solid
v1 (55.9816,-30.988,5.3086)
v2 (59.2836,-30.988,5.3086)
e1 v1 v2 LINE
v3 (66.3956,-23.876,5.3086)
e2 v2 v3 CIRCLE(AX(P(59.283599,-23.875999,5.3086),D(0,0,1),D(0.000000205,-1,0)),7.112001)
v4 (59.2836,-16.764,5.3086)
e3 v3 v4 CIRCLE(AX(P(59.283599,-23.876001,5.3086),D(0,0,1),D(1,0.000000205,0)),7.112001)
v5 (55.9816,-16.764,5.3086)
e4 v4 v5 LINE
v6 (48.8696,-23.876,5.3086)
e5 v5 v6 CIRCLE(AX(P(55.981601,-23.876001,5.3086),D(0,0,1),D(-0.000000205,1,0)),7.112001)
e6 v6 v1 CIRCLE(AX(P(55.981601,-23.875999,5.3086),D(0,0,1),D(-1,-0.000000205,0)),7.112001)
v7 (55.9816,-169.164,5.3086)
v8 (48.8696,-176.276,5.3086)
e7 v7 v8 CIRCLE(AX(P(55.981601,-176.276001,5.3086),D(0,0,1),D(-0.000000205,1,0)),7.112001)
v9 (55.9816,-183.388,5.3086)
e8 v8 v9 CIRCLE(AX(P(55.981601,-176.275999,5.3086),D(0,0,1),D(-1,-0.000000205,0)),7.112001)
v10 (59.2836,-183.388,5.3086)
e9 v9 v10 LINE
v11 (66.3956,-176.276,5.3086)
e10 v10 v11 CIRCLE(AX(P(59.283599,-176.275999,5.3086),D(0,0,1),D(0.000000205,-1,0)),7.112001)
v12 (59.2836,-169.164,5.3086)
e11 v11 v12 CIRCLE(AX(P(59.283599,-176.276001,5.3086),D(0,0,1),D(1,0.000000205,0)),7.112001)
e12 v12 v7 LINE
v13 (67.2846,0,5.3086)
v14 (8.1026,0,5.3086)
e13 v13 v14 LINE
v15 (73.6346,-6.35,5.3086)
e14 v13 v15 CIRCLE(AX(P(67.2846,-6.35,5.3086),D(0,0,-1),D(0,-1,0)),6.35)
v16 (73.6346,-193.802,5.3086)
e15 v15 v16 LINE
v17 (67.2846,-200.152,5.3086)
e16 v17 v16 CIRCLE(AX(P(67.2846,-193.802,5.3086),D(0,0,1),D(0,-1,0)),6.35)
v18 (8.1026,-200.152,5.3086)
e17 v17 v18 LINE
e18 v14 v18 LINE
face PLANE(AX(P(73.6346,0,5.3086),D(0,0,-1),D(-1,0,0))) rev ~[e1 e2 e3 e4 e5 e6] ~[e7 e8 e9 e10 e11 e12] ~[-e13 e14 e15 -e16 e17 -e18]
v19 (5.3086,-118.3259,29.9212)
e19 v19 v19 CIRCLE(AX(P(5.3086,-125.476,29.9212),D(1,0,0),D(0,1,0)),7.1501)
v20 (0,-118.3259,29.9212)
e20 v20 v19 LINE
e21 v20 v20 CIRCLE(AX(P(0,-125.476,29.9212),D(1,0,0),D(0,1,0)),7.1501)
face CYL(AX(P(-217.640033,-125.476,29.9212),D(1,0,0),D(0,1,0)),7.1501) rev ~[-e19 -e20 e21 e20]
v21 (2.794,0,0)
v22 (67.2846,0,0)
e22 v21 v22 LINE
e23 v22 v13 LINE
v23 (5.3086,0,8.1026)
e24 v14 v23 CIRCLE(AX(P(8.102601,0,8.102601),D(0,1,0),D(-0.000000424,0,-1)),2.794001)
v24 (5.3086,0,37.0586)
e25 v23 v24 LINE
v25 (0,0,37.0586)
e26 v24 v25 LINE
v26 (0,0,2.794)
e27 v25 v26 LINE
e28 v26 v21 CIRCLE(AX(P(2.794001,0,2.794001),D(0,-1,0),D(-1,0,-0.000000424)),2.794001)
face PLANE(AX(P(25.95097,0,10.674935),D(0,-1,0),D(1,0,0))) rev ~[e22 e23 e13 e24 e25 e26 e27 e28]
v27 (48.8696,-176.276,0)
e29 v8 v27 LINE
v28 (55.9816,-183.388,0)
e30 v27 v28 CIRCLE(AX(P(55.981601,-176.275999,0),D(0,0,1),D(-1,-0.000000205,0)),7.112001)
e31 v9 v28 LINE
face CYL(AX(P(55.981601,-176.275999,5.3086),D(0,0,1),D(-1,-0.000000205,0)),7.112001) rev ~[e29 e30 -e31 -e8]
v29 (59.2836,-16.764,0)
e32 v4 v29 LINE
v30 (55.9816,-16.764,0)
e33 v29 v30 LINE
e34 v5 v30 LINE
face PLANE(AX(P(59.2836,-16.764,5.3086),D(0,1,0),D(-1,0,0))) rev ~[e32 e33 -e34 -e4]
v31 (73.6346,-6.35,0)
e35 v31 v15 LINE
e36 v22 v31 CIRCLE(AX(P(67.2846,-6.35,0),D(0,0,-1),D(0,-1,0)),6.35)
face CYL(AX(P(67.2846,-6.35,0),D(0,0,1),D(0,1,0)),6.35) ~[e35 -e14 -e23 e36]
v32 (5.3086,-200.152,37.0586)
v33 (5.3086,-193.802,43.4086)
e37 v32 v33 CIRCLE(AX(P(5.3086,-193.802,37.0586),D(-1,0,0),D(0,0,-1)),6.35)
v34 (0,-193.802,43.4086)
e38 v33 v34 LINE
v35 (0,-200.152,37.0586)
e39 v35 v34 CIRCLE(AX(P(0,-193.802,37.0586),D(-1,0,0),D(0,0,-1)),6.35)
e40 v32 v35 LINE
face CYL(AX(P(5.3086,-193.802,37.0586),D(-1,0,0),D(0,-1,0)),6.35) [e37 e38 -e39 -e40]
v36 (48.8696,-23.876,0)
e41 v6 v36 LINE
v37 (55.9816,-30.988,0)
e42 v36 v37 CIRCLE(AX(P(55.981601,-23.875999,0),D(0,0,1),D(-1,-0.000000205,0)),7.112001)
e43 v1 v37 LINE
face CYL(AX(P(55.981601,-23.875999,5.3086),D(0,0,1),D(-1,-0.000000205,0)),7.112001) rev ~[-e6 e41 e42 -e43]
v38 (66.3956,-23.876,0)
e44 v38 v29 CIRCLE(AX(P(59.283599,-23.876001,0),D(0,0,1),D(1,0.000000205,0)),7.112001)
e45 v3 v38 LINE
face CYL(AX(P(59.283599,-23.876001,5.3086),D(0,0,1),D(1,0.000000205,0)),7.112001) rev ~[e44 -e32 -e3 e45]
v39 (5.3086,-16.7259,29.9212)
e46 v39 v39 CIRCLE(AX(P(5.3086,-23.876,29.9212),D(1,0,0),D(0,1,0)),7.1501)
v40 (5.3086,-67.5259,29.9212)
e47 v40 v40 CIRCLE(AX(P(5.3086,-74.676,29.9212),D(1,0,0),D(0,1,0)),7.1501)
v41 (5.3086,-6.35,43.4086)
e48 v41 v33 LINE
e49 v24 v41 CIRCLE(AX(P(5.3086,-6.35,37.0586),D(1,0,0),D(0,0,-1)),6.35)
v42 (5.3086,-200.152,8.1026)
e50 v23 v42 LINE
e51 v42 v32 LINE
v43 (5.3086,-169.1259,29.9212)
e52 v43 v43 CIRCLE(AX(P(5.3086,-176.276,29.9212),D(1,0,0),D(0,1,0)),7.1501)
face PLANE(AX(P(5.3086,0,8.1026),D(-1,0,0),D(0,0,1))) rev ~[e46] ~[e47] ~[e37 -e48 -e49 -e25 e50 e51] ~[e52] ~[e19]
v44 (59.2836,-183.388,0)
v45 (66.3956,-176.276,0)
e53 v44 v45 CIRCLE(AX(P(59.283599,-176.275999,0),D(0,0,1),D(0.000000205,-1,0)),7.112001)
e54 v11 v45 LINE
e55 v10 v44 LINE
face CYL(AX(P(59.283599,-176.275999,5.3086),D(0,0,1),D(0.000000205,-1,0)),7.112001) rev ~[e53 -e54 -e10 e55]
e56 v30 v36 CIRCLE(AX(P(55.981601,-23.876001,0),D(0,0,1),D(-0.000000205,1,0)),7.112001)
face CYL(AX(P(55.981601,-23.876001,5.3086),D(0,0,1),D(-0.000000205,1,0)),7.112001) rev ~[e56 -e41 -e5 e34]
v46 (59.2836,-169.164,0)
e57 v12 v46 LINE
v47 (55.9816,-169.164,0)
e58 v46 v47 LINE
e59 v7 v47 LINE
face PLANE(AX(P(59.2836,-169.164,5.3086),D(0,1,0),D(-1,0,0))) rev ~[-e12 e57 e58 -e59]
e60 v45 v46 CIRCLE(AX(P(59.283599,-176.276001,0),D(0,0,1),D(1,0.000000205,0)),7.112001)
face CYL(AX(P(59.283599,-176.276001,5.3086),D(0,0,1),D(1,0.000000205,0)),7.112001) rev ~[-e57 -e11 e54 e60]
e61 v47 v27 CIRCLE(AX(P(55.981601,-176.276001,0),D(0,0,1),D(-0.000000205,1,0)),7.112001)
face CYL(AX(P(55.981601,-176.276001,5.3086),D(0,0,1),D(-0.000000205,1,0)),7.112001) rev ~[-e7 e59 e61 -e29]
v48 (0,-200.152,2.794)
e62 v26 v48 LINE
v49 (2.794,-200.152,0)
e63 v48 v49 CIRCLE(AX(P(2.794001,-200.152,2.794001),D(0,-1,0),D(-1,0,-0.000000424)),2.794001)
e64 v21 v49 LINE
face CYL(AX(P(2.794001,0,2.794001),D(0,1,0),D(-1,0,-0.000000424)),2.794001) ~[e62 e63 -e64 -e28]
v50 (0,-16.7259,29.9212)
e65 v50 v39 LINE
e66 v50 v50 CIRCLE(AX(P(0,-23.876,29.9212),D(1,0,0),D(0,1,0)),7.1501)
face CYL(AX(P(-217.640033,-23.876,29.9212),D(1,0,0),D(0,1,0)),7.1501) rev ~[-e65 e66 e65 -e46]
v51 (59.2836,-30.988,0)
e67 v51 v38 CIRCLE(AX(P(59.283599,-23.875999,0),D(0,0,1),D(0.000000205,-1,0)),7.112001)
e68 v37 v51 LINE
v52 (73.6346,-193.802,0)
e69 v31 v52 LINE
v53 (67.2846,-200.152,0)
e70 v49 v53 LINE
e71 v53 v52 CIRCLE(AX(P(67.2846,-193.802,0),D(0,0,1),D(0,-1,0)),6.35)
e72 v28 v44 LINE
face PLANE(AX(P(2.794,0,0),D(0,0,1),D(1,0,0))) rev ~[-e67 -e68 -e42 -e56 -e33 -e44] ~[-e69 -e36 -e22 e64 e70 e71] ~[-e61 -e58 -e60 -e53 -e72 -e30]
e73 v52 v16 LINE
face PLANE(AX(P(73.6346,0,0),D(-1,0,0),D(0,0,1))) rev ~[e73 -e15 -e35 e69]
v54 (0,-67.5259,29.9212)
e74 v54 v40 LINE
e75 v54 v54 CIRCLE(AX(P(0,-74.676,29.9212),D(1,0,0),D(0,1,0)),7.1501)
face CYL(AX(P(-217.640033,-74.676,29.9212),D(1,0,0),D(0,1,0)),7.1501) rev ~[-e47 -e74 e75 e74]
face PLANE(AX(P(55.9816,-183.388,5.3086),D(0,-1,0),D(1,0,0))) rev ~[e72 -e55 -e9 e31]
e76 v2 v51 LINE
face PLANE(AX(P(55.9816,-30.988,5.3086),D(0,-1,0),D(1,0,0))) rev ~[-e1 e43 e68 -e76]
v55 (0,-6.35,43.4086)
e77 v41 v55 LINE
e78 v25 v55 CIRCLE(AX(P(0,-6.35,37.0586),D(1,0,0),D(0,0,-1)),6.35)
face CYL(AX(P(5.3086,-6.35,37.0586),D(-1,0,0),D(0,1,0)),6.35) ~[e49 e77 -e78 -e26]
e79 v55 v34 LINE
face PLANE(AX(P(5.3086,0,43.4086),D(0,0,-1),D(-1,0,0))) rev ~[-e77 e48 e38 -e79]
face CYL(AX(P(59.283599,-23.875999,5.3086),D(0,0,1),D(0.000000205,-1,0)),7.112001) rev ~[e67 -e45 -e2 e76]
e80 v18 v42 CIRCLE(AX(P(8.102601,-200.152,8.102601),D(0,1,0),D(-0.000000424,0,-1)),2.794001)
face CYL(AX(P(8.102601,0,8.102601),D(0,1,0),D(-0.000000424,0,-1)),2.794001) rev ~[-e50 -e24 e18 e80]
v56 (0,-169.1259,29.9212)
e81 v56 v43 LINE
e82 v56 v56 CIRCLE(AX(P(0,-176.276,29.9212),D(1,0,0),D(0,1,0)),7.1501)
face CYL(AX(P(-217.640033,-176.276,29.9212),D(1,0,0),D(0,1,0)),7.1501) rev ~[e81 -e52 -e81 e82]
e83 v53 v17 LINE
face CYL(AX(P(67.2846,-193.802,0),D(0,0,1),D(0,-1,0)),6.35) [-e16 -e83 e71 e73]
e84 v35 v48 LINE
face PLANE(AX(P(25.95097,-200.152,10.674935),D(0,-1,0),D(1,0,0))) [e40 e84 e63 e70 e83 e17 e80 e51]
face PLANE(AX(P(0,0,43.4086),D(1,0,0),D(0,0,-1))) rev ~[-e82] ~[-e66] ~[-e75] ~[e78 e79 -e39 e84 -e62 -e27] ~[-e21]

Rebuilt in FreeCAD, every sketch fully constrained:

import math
import FreeCAD as App
import Part
import Sketcher

V = App.Vector
Q = App.Units.Quantity


def edges_at(feature, points):
    """Names of the edges that pass closest to the given points."""
    edges = feature.Shape.Edges
    near = lambda p: min(range(len(edges)), key=lambda i: edges[i].distToShape(Part.Vertex(*p))[0])
    return sorted({f"Edge{near(p) + 1}" for p in points})

doc = App.newDocument("Part")
body = doc.addObject("PartDesign::Body", "Body")

sketch1 = body.newObject("Sketcher::SketchObject", "Sketch")
sketch1.AttachmentSupport = (doc.getObject("XZ_Plane"), [""])
sketch1.MapMode = "FlatFace"
sketch1.addGeometry([
    Part.ArcOfCircle(Part.Circle(V(2.794001, 2.794001, 0), V(0, 0, 1), 2.794001), math.radians(-179.999976), math.radians(-90.000024)),
    Part.LineSegment(V(2.794, 0, 0), V(73.6346, 0, 0)),
    Part.LineSegment(V(73.6346, 0, 0), V(73.6346, 5.3086, 0)),
    Part.LineSegment(V(73.6346, 5.3086, 0), V(8.1026, 5.3086, 0)),
    Part.ArcOfCircle(Part.Circle(V(8.102601, 8.102601, 0), V(0, 0, 1), 2.794001), math.radians(-179.999976), math.radians(-90.000024)),
    Part.LineSegment(V(5.3086, 8.1026, 0), V(5.3086, 43.4086, 0)),
    Part.LineSegment(V(5.3086, 43.4086, 0), V(0, 43.4086, 0)),
    Part.LineSegment(V(0, 43.4086, 0), V(0, 2.794, 0)),
], False)
sketch1.addConstraint([
    Sketcher.Constraint("Tangent", 0, 2, 1, 1),
    Sketcher.Constraint("Coincident", 1, 2, 2, 1),
    Sketcher.Constraint("Coincident", 2, 2, 3, 1),
    Sketcher.Constraint("Tangent", 3, 2, 4, 2),
    Sketcher.Constraint("Tangent", 4, 1, 5, 1),
    Sketcher.Constraint("Coincident", 5, 2, 6, 1),
    Sketcher.Constraint("Coincident", 6, 2, 7, 1),
    Sketcher.Constraint("Tangent", 7, 2, 0, 1),
    Sketcher.Constraint("Horizontal", 1),
    Sketcher.Constraint("Vertical", 2),
    Sketcher.Constraint("Horizontal", 3),
    Sketcher.Constraint("Vertical", 5),
    Sketcher.Constraint("Horizontal", 6),
    Sketcher.Constraint("Vertical", 7),
    Sketcher.Constraint("Equal", 0, 4),
    Sketcher.Constraint("PointOnObject", 0, 2, -1),
    Sketcher.Constraint("PointOnObject", 6, 2, -2),
    Sketcher.Constraint("Equal", 6, 2),
    Sketcher.Constraint("Radius", 0, Q("0.11 in")),
    Sketcher.Constraint("DistanceX", 3, 2, 3, 1, Q("2.58 in")),
    Sketcher.Constraint("DistanceY", 5, 1, 5, 2, Q("1.39 in")),
    Sketcher.Constraint("DistanceX", 1, 1, 1, 2, Q("2.789 in")),
])
pad1 = body.newObject("PartDesign::Pad", "Pad")
pad1.Profile = sketch1
pad1.Length = Q("7.88 in")

sketch2 = body.newObject("Sketcher::SketchObject", "Sketch001")
sketch2.AttachmentSupport = (doc.getObject("YZ_Plane"), [""])
sketch2.MapMode = "FlatFace"
sketch2.addGeometry([
    Part.Circle(V(-23.876, 29.9212, 0), V(0, 0, 1), 7.1501),
    Part.Circle(V(-74.676, 29.9212, 0), V(0, 0, 1), 7.1501),
    Part.Circle(V(-125.476, 29.9212, 0), V(0, 0, 1), 7.1501),
    Part.Circle(V(-176.276, 29.9212, 0), V(0, 0, 1), 7.1501),
], False)
sketch2.addConstraint([
    Sketcher.Constraint("Equal", 0, 1),
    Sketcher.Constraint("Equal", 1, 2),
    Sketcher.Constraint("Equal", 2, 3),
    Sketcher.Constraint("Horizontal", 0, 3, 1, 3),
    Sketcher.Constraint("Horizontal", 1, 3, 2, 3),
    Sketcher.Constraint("Horizontal", 2, 3, 3, 3),
    Sketcher.Constraint("Diameter", 0, Q("0.563 in")),
    Sketcher.Constraint("DistanceX", 1, 3, 0, 3, Q("2 in")),
    Sketcher.Constraint("DistanceX", 2, 3, 1, 3, Q("2 in")),
    Sketcher.Constraint("DistanceX", 3, 3, 2, 3, Q("2 in")),
    Sketcher.Constraint("DistanceX", 0, 3, -1, 1, Q("0.94 in")),
    Sketcher.Constraint("DistanceY", -1, 1, 0, 3, Q("1.178 in")),
])
doc.recompute()
hole = body.newObject("PartDesign::Hole", "Hole")
hole.Profile = sketch2
hole.ThreadType = "None"
hole.Diameter = Q("0.563 in")
hole.DepthType = "ThroughAll"
hole.Reversed = True
doc.recompute()

fillet = body.newObject("PartDesign::Fillet", "Fillet")
fillet.Base = (hole, edges_at(hole, [
    (2.654, 0, 43.409),
    (73.635, 0, 2.654),
    (73.635, -200.152, 2.654),
    (2.654, -200.152, 43.409),
]))
fillet.Radius = Q("0.25 in")

sketch3 = body.newObject("Sketcher::SketchObject", "Sketch002")
sketch3.AttachmentSupport = (doc.getObject("XY_Plane"), [""])
sketch3.MapMode = "FlatFace"
sketch3.AttachmentOffset = App.Placement(V(0, 0, 0.209 * 25.4), App.Rotation())
sketch3.addGeometry([
    Part.ArcOfCircle(Part.Circle(V(59.283599, -23.876001, 0), V(0, 0, 1), 7.112001), math.radians(0.000012), math.radians(89.999988)),
    Part.LineSegment(V(59.2836, -16.764, 0), V(55.9816, -16.764, 0)),
    Part.ArcOfCircle(Part.Circle(V(55.981601, -23.876001, 0), V(0, 0, 1), 7.112001), math.radians(90.000012), math.radians(179.999988)),
    Part.ArcOfCircle(Part.Circle(V(55.981601, -23.875999, 0), V(0, 0, 1), 7.112001), math.radians(-179.999988), math.radians(-90.000012)),
    Part.LineSegment(V(55.9816, -30.988, 0), V(59.2836, -30.988, 0)),
    Part.ArcOfCircle(Part.Circle(V(59.283599, -23.875999, 0), V(0, 0, 1), 7.112001), math.radians(-89.999988), math.radians(-0.000012)),
    Part.ArcOfCircle(Part.Circle(V(59.283599, -176.276001, 0), V(0, 0, 1), 7.112001), math.radians(0.000012), math.radians(89.999988)),
    Part.LineSegment(V(59.2836, -169.164, 0), V(55.9816, -169.164, 0)),
    Part.ArcOfCircle(Part.Circle(V(55.981601, -176.276001, 0), V(0, 0, 1), 7.112001), math.radians(90.000012), math.radians(179.999988)),
    Part.ArcOfCircle(Part.Circle(V(55.981601, -176.275999, 0), V(0, 0, 1), 7.112001), math.radians(-179.999988), math.radians(-90.000012)),
    Part.LineSegment(V(55.9816, -183.388, 0), V(59.2836, -183.388, 0)),
    Part.ArcOfCircle(Part.Circle(V(59.283599, -176.275999, 0), V(0, 0, 1), 7.112001), math.radians(-89.999988), math.radians(-0.000012)),
], False)
sketch3.addConstraint([
    Sketcher.Constraint("Tangent", 0, 2, 1, 1),
    Sketcher.Constraint("Tangent", 1, 2, 2, 1),
    Sketcher.Constraint("Tangent", 2, 2, 3, 1),
    Sketcher.Constraint("Tangent", 3, 2, 4, 1),
    Sketcher.Constraint("Tangent", 4, 2, 5, 1),
    Sketcher.Constraint("Tangent", 5, 2, 0, 1),
    Sketcher.Constraint("Tangent", 6, 2, 7, 1),
    Sketcher.Constraint("Tangent", 7, 2, 8, 1),
    Sketcher.Constraint("Tangent", 8, 2, 9, 1),
    Sketcher.Constraint("Tangent", 9, 2, 10, 1),
    Sketcher.Constraint("Tangent", 10, 2, 11, 1),
    Sketcher.Constraint("Tangent", 11, 2, 6, 1),
    Sketcher.Constraint("Horizontal", 1),
    Sketcher.Constraint("Horizontal", 4),
    Sketcher.Constraint("Horizontal", 7),
    Sketcher.Constraint("Horizontal", 10),
    Sketcher.Constraint("Equal", 0, 2),
    Sketcher.Constraint("Equal", 2, 3),
    Sketcher.Constraint("Equal", 5, 6),
    Sketcher.Constraint("Equal", 6, 8),
    Sketcher.Constraint("Equal", 8, 9),
    Sketcher.Constraint("Horizontal", 5, 3, 2, 2),
    Sketcher.Constraint("Horizontal", 2, 2, 5, 2),
    Sketcher.Constraint("Horizontal", 11, 3, 8, 2),
    Sketcher.Constraint("Horizontal", 8, 2, 11, 2),
    Sketcher.Constraint("Vertical", 5, 3, 6, 3),
    Sketcher.Constraint("Vertical", 3, 3, 8, 3),
    Sketcher.Constraint("Radius", 0, Q("0.2800001 in")),
    Sketcher.Constraint("DistanceY", 6, 3, 0, 3, Q("6 in")),
    Sketcher.Constraint("DistanceX", 1, 2, 1, 1, Q("0.13 in")),
    Sketcher.Constraint("DistanceY", 0, 3, -1, 1, Q("0.9400001 in")),
    Sketcher.Constraint("DistanceX", -1, 1, 0, 3, Q("2.3339999 in")),
])
pocket1 = body.newObject("PartDesign::Pocket", "Pocket")
pocket1.Profile = sketch3
pocket1.Length = Q("1 in")

doc.recompute()
